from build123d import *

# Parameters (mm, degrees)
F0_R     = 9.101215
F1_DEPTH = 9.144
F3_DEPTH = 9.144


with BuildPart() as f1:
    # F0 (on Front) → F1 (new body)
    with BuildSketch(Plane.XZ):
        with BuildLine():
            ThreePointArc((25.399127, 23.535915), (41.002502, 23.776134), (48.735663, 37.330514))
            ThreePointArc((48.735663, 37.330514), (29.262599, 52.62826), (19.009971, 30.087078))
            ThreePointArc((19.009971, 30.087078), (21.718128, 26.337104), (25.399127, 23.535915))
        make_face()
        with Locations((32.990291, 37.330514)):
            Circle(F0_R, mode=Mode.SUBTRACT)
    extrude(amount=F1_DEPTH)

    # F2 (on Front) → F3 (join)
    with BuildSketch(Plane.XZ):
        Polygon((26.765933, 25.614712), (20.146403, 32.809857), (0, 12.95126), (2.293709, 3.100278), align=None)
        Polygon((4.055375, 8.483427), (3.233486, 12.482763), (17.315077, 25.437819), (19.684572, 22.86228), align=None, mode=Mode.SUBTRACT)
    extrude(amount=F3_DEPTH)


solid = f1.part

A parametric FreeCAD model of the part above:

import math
import FreeCAD as App
import Part
import Sketcher
Q = App.Units.Quantity


def add_polygon(sketch, points):
    """Adds a closed chain of lines whose ends are joined by coincident constraints."""
    first, n = sketch.GeometryCount, len(points)
    for a, b in zip(points, points[1:] + points[:1]):
        sketch.addGeometry(Part.LineSegment(App.Vector(*a, 0), App.Vector(*b, 0)), False)
    for i in range(n):
        sketch.addConstraint(Sketcher.Constraint("Coincident", first + i, 2, first + (i + 1) % n, 1))

doc = App.newDocument("Part")
body = doc.addObject("PartDesign::Body", "Body")

# Sketch on XZ plane
sketch1 = doc.addObject("Sketcher::SketchObject", "Sketch")
body.addObject(sketch1)
sketch1.AttachmentSupport = (doc.XZ_Plane, [""])
sketch1.MapMode = "FlatFace"
sketch1.addGeometry([
    Part.ArcOfCircle(Part.Circle(App.Vector(32.990291, 37.330514, 0), App.Vector(0, 0, 1), 15.745372), math.radians(-118.823978), math.radians(0.000001)),
    Part.ArcOfCircle(Part.Circle(App.Vector(32.990291, 37.330514, 0), App.Vector(0, 0, 1), 15.745372), math.radians(0), math.radians(207.389423)),
    Part.ArcOfCircle(Part.Circle(App.Vector(32.990292, 37.330513, 0), App.Vector(0, 0, 1), 15.745372), math.radians(-152.610579), math.radians(-118.823981)),
    Part.Circle(App.Vector(32.990291, 37.330514, 0), App.Vector(0, 0, 1), 9.101215),
], False)
sketch1.addConstraint([
    Sketcher.Constraint("Tangent", 0, 2, 1, 1),
    Sketcher.Constraint("Tangent", 1, 2, 2, 1),
    Sketcher.Constraint("Tangent", 2, 2, 0, 1),
    Sketcher.Constraint("Coincident", 3, 3, 0, 3),
    Sketcher.Constraint("Horizontal", 3, 3, 0, 2),
    Sketcher.Constraint("Diameter", 3, Q("18.20243 mm")),
    Sketcher.Constraint("Radius", 0, Q("15.745372 mm")),
    Sketcher.Constraint("DistanceY", 2, 2, 2, 3, Q("13.794598 mm")),
    Sketcher.Constraint("DistanceX", -1, 1, 0, 3, Q("32.990291 mm")),
    Sketcher.Constraint("DistanceX", -1, 1, 1, 2, Q("19.009971 mm")),
    Sketcher.Constraint("DistanceY", -1, 1, 0, 3, Q("37.330514 mm")),
])
pad1 = doc.addObject("PartDesign::Pad", "Pad")
body.addObject(pad1)
pad1.Profile = sketch1
pad1.Length = Q("0.36 in")

# Sketch on XZ plane
sketch2 = doc.addObject("Sketcher::SketchObject", "Sketch001")
body.addObject(sketch2)
sketch2.AttachmentSupport = (doc.XZ_Plane, [""])
sketch2.MapMode = "FlatFace"
add_polygon(sketch2, [(26.765933, 25.614712), (20.146403, 32.809857), (0, 12.95126), (2.293709, 3.100278)])  # lines 0-3
add_polygon(sketch2, [(19.684572, 22.86228), (4.055375, 8.483427), (3.233486, 12.482763), (17.315077, 25.437819)])  # lines 4-7
sketch2.addConstraint([
    Sketcher.Constraint("PointOnObject", 1, 2, -2),
    Sketcher.Constraint("Perpendicular", 0, 3),
    Sketcher.Constraint("Parallel", 3, 4),
    Sketcher.Constraint("Parallel", 4, 6),
    Sketcher.Constraint("Perpendicular", 6, 7),
    Sketcher.Constraint("Distance", 7, Q("3.499701 mm")),
    Sketcher.Constraint("DistanceX", 4, 2, 6, 2, Q("13.259702 mm")),
    Sketcher.Constraint("Distance", 1, Q("28.288539 mm")),
    Sketcher.Constraint("Distance", 2, Q("10.114492 mm")),
    Sketcher.Constraint("DistanceY", -1, 1, 1, 2, Q("12.95126 mm")),
    Sketcher.Constraint("DistanceX", -1, 1, 2, 2, Q("2.293709 mm")),
    Sketcher.Constraint("DistanceY", -1, 1, 6, 2, Q("25.437819 mm")),
    Sketcher.Constraint("DistanceX", -1, 1, 7, 2, Q("19.684572 mm")),
    Sketcher.Constraint("DistanceY", -1, 1, 7, 2, Q("22.86228 mm")),
    Sketcher.Constraint("DistanceY", 2, 2, 0, 2, Q("29.709579 mm")),
    Sketcher.Constraint("DistanceX", 5, 2, 4, 2, Q("0.821889 mm")),
])
pad2 = doc.addObject("PartDesign::Pad", "Pad001")
body.addObject(pad2)
pad2.Profile = sketch2
pad2.Length = Q("0.36 in")

doc.recompute()
